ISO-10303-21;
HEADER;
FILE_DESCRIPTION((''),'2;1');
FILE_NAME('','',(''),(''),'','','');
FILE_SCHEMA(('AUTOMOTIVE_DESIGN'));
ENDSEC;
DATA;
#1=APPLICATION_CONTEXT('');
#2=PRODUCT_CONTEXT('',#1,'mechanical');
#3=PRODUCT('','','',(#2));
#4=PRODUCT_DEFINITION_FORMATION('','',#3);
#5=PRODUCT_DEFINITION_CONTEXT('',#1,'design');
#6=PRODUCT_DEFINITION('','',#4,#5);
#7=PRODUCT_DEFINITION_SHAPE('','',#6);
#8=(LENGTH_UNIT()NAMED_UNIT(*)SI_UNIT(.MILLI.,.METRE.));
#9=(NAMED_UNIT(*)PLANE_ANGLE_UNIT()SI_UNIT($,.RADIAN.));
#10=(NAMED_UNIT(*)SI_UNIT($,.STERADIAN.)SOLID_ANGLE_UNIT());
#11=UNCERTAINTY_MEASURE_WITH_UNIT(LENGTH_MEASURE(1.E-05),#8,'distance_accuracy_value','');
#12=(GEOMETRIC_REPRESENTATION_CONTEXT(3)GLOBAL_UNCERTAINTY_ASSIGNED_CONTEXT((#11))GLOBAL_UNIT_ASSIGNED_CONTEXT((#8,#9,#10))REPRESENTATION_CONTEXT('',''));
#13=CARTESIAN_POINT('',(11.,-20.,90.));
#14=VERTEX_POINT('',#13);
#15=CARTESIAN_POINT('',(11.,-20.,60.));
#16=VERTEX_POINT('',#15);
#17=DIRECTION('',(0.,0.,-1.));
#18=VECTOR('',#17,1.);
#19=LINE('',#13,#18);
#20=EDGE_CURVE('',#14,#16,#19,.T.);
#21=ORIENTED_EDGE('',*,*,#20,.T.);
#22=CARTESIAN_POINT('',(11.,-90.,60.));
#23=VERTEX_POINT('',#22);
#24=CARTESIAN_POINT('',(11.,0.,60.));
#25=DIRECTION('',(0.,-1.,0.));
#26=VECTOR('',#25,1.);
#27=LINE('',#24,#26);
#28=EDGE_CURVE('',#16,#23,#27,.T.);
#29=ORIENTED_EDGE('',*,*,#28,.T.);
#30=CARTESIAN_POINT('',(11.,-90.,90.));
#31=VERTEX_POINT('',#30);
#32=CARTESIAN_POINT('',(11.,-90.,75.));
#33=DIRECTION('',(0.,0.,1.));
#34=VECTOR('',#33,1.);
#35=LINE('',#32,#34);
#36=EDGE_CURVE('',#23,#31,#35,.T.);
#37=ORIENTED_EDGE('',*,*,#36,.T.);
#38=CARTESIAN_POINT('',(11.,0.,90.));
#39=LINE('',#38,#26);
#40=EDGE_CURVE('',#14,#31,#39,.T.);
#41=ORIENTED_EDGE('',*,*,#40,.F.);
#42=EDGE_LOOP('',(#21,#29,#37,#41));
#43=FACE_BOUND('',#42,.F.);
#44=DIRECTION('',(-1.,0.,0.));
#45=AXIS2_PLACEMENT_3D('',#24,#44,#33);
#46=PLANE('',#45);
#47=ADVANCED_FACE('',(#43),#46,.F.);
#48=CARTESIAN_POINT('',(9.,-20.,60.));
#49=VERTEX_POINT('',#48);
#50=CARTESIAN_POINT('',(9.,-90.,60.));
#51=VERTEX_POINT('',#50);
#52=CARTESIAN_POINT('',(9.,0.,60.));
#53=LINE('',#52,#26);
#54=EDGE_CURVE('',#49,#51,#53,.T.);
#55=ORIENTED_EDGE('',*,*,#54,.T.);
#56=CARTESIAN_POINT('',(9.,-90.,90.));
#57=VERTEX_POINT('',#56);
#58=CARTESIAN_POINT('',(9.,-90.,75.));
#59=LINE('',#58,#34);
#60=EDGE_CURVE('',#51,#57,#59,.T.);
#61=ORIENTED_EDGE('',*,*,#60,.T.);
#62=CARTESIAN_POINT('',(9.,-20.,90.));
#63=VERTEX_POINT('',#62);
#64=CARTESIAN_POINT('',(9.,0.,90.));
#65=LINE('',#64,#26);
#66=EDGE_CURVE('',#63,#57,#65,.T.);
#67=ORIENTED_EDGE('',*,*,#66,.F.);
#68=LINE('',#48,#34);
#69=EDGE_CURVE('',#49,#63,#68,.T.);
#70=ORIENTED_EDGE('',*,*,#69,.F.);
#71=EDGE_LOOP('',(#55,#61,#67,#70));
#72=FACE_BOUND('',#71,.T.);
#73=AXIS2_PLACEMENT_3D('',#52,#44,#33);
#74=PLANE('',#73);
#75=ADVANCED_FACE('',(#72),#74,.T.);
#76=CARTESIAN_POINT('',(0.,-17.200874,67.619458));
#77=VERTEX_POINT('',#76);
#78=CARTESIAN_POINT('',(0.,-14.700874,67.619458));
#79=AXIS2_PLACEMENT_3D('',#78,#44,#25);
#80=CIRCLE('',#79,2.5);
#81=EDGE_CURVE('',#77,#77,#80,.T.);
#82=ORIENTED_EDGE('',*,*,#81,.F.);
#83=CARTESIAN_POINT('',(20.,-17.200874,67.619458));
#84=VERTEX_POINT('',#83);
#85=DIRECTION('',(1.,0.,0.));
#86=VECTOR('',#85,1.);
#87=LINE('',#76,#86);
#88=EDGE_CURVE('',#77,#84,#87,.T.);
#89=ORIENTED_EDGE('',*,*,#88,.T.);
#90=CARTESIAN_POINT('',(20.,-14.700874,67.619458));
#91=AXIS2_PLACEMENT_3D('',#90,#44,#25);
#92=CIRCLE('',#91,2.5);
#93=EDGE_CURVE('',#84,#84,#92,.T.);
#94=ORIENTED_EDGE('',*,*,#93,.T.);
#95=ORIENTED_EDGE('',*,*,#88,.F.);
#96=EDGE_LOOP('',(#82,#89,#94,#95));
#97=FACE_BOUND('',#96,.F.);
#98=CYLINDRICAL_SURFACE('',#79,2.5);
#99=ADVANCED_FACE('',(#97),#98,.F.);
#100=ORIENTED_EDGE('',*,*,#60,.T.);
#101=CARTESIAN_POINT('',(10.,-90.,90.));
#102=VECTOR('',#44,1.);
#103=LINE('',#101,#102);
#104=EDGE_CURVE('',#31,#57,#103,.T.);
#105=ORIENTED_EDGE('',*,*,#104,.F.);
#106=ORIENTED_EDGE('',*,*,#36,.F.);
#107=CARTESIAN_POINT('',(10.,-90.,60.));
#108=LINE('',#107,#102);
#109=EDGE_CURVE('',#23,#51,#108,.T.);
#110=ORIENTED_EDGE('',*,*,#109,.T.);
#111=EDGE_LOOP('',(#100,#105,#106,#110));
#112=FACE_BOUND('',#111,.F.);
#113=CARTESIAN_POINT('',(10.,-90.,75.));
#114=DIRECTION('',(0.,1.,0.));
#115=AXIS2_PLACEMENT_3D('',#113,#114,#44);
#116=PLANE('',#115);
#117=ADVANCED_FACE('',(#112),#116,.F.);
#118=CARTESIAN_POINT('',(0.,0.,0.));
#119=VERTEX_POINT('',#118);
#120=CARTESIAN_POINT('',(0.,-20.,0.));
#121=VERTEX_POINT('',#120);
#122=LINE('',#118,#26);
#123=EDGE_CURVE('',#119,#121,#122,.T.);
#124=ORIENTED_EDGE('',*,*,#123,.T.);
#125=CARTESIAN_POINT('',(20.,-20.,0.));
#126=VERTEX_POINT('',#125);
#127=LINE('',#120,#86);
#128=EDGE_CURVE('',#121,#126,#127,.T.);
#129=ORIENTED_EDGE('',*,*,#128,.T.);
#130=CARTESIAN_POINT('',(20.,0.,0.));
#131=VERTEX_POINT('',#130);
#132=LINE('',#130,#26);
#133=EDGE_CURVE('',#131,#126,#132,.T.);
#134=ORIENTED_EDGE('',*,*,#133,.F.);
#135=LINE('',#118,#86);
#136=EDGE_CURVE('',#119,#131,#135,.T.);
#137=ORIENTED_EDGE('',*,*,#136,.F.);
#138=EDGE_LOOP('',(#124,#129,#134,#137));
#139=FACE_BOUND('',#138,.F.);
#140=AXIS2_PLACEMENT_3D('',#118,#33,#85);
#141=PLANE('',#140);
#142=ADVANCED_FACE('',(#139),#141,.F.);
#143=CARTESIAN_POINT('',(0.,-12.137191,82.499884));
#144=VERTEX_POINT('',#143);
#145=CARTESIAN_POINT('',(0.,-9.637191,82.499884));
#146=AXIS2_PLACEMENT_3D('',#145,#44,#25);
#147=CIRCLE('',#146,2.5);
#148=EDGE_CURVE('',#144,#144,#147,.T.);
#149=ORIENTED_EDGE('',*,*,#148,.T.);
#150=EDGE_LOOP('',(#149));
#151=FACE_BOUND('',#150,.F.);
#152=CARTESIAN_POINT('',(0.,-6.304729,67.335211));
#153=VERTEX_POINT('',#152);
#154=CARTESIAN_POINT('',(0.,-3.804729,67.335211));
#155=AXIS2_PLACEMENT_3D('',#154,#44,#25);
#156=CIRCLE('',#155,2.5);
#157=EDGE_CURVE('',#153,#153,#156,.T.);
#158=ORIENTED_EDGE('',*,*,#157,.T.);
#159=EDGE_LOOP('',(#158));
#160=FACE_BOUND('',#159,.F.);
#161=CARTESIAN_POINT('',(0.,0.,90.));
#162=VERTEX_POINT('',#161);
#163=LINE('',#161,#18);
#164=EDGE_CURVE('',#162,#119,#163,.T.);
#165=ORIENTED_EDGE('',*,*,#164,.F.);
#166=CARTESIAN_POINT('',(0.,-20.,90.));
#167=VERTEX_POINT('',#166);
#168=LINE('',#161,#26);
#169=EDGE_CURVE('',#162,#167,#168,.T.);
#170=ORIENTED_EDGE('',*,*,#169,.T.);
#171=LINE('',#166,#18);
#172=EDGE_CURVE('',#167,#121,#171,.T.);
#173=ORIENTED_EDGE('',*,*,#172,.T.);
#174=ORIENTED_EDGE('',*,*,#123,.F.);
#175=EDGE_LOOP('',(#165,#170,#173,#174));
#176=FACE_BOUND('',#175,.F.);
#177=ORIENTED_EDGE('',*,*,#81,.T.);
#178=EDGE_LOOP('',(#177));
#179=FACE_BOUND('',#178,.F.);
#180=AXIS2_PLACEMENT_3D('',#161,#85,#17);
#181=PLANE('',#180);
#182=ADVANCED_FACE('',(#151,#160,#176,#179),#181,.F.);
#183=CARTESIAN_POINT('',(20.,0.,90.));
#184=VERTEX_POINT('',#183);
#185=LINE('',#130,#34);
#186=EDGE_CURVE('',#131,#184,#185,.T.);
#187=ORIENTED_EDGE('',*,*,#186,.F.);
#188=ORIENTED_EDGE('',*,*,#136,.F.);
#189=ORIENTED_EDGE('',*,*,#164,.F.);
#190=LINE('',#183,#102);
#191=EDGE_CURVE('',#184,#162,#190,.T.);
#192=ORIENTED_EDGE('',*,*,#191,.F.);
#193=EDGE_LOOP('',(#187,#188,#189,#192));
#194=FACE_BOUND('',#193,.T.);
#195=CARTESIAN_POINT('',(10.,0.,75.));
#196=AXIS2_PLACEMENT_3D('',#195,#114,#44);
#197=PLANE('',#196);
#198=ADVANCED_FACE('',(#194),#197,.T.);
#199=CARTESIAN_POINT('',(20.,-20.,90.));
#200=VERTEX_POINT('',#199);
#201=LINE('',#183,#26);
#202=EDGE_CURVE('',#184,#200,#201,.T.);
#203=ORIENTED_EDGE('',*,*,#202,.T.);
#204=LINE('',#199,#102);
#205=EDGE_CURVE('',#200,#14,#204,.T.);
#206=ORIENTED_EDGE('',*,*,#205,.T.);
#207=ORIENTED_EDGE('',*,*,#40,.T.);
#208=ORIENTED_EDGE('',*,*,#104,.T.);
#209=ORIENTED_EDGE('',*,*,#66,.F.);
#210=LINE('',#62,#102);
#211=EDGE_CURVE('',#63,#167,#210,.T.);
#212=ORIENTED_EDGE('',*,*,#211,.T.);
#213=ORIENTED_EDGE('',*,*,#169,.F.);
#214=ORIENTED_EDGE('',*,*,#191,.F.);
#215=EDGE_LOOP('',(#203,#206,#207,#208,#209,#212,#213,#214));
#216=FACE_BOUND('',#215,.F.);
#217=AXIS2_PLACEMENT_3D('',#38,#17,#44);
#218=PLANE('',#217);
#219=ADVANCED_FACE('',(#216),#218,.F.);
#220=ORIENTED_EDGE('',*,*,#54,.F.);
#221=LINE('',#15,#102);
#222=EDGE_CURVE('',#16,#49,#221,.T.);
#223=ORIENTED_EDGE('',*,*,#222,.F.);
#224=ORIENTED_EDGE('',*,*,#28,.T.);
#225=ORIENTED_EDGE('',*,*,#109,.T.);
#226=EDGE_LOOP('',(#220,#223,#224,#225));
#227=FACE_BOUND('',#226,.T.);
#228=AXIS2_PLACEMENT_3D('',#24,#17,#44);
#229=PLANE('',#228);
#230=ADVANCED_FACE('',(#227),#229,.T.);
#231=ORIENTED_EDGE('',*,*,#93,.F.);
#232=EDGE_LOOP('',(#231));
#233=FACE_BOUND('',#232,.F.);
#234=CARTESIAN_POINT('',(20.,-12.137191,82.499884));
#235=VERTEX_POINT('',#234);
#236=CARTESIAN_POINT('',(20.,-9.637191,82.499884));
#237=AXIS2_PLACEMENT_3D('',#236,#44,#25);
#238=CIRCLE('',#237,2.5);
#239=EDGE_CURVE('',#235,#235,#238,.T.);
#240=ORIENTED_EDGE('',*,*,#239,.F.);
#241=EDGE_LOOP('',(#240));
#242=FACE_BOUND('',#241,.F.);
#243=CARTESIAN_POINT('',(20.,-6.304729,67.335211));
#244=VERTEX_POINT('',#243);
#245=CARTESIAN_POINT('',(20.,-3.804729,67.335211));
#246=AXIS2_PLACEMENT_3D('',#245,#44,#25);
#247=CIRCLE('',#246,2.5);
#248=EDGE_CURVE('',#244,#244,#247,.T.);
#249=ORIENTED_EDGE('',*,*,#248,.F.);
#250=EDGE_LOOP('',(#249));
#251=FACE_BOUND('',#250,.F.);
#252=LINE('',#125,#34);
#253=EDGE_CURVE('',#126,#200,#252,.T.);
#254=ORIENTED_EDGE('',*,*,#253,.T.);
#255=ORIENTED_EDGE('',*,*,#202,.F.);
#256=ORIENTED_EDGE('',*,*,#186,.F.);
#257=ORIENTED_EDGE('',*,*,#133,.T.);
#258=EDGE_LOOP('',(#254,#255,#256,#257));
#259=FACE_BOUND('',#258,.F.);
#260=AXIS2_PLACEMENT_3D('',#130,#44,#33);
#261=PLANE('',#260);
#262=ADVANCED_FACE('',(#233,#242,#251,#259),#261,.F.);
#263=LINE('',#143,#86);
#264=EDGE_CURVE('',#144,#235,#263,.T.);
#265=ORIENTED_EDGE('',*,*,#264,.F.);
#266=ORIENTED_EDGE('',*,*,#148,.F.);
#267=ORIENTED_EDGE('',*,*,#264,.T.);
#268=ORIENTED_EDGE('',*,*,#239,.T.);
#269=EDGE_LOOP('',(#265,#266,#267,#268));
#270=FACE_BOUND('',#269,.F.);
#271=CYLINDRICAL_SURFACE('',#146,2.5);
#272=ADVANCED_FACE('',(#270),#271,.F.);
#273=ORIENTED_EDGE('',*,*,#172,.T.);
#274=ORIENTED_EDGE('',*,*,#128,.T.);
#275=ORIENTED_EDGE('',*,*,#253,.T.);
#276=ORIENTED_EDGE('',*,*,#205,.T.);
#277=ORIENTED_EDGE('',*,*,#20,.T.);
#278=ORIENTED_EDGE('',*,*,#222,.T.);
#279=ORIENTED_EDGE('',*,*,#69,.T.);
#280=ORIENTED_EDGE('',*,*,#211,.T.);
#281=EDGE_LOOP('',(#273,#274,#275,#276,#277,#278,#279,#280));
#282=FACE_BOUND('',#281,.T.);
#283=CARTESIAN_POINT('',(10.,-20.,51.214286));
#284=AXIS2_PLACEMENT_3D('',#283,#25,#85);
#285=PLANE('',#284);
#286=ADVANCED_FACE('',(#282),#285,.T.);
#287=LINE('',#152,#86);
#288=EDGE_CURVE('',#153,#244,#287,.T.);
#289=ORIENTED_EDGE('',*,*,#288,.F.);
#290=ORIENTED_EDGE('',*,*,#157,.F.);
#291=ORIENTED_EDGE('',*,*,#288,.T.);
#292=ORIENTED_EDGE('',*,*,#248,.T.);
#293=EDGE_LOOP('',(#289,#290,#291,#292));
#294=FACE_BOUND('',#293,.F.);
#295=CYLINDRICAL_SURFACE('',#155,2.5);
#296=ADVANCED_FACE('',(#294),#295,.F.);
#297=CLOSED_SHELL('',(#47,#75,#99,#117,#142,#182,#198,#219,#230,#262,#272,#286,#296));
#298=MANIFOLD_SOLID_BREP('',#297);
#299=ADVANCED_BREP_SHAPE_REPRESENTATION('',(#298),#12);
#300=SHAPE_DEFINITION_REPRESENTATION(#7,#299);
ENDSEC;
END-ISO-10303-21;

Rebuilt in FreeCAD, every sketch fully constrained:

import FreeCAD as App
import Part
import Sketcher
from FreeCAD import Vector


def add_polygon(sketch, points):
    """Adds a closed chain of lines whose ends are joined by coincident constraints."""
    first, n = sketch.GeometryCount, len(points)
    for a, b in zip(points, points[1:] + points[:1]):
        sketch.addGeometry(Part.LineSegment(App.Vector(*a, 0), App.Vector(*b, 0)), False)
    for i in range(n):
        sketch.addConstraint(Sketcher.Constraint("Coincident", first + i, 2, first + (i + 1) % n, 1))

doc = App.newDocument("Part")
body = doc.addObject("PartDesign::Body", "Body")

sketch1 = body.newObject("Sketcher::SketchObject", "Sketch")
sketch1.AttachmentSupport = (doc.getObject("XZ_Plane"), [""])
sketch1.MapMode = "FlatFace"
add_polygon(sketch1, [(0, 90), (0, 0), (20, 0), (20, 90), (11, 90), (11, 60), (9, 60), (9, 90)])
sketch1.addConstraint([
    Sketcher.Constraint("Vertical", 0),
    Sketcher.Constraint("Horizontal", 1),
    Sketcher.Constraint("Vertical", 2),
    Sketcher.Constraint("Horizontal", 3),
    Sketcher.Constraint("Vertical", 4),
    Sketcher.Constraint("Horizontal", 5),
    Sketcher.Constraint("Vertical", 6),
    Sketcher.Constraint("Horizontal", 7),
    Sketcher.Constraint("Coincident", 0, 2, -1, 1),
    Sketcher.Constraint("Horizontal", 3, 2, 6, 2),
    Sketcher.Constraint("Equal", 3, 7),
    Sketcher.Constraint("DistanceX", 1, 1, 1, 2, 20.0),
    Sketcher.Constraint("DistanceX", 3, 2, 3, 1, 9.0),
    Sketcher.Constraint("DistanceY", 0, 2, 0, 1, 90.0),
    Sketcher.Constraint("DistanceY", 4, 2, 4, 1, 30.0),
])
pad1 = body.newObject("PartDesign::Pad", "Pad")
pad1.Profile = sketch1
pad1.Length = 20

sketch2 = body.newObject("Sketcher::SketchObject", "Sketch001")
sketch2.AttachmentSupport = (doc.getObject("XZ_Plane"), [""])
sketch2.MapMode = "FlatFace"
add_polygon(sketch2, [(11, 90), (11, 60), (9, 60), (9, 90)])
sketch2.addConstraint([
    Sketcher.Constraint("Vertical", 0),
    Sketcher.Constraint("Horizontal", 1),
    Sketcher.Constraint("Vertical", 2),
    Sketcher.Constraint("Horizontal", 3),
    Sketcher.Constraint("DistanceX", 1, 2, 1, 1, 2.0),
    Sketcher.Constraint("DistanceY", 0, 2, 0, 1, 30.0),
    Sketcher.Constraint("DistanceX", -1, 1, 0, 2, 11.0),
    Sketcher.Constraint("DistanceY", -1, 1, 0, 2, 60.0),
])
pad2 = body.newObject("PartDesign::Pad", "Pad001")
pad2.Profile = sketch2
pad2.Length = 90

sketch3 = body.newObject("Sketcher::SketchObject", "Sketch002")
sketch3.AttachmentSupport = (doc.getObject("YZ_Plane"), [""])
sketch3.MapMode = "FlatFace"
sketch3.addGeometry([
    Part.Circle(Vector(-9.6, 82.5, 0), Vector(0, 0, 1), 2.5),
    Part.Circle(Vector(-3.8, 67.3, 0), Vector(0, 0, 1), 2.5),
    Part.Circle(Vector(-14.7, 67.6, 0), Vector(0, 0, 1), 2.5),
], False)
sketch3.addConstraint([
    Sketcher.Constraint("Equal", 0, 1),
    Sketcher.Constraint("Equal", 1, 2),
    Sketcher.Constraint("Diameter", 0, 5.0),
    Sketcher.Constraint("DistanceX", 0, 3, -1, 1, 9.637191),
    Sketcher.Constraint("DistanceX", 1, 3, -1, 1, 3.804729),
    Sketcher.Constraint("DistanceY", -1, 1, 1, 3, 67.335211),
    Sketcher.Constraint("DistanceY", -1, 1, 0, 3, 82.499884),
    Sketcher.Constraint("DistanceX", 2, 3, -1, 1, 14.700874),
    Sketcher.Constraint("DistanceY", -1, 1, 2, 3, 67.619458),
])
pocket1 = body.newObject("PartDesign::Pocket", "Pocket")
pocket1.Profile = sketch3
pocket1.Length = 25
pocket1.Reversed = True

doc.recompute()
